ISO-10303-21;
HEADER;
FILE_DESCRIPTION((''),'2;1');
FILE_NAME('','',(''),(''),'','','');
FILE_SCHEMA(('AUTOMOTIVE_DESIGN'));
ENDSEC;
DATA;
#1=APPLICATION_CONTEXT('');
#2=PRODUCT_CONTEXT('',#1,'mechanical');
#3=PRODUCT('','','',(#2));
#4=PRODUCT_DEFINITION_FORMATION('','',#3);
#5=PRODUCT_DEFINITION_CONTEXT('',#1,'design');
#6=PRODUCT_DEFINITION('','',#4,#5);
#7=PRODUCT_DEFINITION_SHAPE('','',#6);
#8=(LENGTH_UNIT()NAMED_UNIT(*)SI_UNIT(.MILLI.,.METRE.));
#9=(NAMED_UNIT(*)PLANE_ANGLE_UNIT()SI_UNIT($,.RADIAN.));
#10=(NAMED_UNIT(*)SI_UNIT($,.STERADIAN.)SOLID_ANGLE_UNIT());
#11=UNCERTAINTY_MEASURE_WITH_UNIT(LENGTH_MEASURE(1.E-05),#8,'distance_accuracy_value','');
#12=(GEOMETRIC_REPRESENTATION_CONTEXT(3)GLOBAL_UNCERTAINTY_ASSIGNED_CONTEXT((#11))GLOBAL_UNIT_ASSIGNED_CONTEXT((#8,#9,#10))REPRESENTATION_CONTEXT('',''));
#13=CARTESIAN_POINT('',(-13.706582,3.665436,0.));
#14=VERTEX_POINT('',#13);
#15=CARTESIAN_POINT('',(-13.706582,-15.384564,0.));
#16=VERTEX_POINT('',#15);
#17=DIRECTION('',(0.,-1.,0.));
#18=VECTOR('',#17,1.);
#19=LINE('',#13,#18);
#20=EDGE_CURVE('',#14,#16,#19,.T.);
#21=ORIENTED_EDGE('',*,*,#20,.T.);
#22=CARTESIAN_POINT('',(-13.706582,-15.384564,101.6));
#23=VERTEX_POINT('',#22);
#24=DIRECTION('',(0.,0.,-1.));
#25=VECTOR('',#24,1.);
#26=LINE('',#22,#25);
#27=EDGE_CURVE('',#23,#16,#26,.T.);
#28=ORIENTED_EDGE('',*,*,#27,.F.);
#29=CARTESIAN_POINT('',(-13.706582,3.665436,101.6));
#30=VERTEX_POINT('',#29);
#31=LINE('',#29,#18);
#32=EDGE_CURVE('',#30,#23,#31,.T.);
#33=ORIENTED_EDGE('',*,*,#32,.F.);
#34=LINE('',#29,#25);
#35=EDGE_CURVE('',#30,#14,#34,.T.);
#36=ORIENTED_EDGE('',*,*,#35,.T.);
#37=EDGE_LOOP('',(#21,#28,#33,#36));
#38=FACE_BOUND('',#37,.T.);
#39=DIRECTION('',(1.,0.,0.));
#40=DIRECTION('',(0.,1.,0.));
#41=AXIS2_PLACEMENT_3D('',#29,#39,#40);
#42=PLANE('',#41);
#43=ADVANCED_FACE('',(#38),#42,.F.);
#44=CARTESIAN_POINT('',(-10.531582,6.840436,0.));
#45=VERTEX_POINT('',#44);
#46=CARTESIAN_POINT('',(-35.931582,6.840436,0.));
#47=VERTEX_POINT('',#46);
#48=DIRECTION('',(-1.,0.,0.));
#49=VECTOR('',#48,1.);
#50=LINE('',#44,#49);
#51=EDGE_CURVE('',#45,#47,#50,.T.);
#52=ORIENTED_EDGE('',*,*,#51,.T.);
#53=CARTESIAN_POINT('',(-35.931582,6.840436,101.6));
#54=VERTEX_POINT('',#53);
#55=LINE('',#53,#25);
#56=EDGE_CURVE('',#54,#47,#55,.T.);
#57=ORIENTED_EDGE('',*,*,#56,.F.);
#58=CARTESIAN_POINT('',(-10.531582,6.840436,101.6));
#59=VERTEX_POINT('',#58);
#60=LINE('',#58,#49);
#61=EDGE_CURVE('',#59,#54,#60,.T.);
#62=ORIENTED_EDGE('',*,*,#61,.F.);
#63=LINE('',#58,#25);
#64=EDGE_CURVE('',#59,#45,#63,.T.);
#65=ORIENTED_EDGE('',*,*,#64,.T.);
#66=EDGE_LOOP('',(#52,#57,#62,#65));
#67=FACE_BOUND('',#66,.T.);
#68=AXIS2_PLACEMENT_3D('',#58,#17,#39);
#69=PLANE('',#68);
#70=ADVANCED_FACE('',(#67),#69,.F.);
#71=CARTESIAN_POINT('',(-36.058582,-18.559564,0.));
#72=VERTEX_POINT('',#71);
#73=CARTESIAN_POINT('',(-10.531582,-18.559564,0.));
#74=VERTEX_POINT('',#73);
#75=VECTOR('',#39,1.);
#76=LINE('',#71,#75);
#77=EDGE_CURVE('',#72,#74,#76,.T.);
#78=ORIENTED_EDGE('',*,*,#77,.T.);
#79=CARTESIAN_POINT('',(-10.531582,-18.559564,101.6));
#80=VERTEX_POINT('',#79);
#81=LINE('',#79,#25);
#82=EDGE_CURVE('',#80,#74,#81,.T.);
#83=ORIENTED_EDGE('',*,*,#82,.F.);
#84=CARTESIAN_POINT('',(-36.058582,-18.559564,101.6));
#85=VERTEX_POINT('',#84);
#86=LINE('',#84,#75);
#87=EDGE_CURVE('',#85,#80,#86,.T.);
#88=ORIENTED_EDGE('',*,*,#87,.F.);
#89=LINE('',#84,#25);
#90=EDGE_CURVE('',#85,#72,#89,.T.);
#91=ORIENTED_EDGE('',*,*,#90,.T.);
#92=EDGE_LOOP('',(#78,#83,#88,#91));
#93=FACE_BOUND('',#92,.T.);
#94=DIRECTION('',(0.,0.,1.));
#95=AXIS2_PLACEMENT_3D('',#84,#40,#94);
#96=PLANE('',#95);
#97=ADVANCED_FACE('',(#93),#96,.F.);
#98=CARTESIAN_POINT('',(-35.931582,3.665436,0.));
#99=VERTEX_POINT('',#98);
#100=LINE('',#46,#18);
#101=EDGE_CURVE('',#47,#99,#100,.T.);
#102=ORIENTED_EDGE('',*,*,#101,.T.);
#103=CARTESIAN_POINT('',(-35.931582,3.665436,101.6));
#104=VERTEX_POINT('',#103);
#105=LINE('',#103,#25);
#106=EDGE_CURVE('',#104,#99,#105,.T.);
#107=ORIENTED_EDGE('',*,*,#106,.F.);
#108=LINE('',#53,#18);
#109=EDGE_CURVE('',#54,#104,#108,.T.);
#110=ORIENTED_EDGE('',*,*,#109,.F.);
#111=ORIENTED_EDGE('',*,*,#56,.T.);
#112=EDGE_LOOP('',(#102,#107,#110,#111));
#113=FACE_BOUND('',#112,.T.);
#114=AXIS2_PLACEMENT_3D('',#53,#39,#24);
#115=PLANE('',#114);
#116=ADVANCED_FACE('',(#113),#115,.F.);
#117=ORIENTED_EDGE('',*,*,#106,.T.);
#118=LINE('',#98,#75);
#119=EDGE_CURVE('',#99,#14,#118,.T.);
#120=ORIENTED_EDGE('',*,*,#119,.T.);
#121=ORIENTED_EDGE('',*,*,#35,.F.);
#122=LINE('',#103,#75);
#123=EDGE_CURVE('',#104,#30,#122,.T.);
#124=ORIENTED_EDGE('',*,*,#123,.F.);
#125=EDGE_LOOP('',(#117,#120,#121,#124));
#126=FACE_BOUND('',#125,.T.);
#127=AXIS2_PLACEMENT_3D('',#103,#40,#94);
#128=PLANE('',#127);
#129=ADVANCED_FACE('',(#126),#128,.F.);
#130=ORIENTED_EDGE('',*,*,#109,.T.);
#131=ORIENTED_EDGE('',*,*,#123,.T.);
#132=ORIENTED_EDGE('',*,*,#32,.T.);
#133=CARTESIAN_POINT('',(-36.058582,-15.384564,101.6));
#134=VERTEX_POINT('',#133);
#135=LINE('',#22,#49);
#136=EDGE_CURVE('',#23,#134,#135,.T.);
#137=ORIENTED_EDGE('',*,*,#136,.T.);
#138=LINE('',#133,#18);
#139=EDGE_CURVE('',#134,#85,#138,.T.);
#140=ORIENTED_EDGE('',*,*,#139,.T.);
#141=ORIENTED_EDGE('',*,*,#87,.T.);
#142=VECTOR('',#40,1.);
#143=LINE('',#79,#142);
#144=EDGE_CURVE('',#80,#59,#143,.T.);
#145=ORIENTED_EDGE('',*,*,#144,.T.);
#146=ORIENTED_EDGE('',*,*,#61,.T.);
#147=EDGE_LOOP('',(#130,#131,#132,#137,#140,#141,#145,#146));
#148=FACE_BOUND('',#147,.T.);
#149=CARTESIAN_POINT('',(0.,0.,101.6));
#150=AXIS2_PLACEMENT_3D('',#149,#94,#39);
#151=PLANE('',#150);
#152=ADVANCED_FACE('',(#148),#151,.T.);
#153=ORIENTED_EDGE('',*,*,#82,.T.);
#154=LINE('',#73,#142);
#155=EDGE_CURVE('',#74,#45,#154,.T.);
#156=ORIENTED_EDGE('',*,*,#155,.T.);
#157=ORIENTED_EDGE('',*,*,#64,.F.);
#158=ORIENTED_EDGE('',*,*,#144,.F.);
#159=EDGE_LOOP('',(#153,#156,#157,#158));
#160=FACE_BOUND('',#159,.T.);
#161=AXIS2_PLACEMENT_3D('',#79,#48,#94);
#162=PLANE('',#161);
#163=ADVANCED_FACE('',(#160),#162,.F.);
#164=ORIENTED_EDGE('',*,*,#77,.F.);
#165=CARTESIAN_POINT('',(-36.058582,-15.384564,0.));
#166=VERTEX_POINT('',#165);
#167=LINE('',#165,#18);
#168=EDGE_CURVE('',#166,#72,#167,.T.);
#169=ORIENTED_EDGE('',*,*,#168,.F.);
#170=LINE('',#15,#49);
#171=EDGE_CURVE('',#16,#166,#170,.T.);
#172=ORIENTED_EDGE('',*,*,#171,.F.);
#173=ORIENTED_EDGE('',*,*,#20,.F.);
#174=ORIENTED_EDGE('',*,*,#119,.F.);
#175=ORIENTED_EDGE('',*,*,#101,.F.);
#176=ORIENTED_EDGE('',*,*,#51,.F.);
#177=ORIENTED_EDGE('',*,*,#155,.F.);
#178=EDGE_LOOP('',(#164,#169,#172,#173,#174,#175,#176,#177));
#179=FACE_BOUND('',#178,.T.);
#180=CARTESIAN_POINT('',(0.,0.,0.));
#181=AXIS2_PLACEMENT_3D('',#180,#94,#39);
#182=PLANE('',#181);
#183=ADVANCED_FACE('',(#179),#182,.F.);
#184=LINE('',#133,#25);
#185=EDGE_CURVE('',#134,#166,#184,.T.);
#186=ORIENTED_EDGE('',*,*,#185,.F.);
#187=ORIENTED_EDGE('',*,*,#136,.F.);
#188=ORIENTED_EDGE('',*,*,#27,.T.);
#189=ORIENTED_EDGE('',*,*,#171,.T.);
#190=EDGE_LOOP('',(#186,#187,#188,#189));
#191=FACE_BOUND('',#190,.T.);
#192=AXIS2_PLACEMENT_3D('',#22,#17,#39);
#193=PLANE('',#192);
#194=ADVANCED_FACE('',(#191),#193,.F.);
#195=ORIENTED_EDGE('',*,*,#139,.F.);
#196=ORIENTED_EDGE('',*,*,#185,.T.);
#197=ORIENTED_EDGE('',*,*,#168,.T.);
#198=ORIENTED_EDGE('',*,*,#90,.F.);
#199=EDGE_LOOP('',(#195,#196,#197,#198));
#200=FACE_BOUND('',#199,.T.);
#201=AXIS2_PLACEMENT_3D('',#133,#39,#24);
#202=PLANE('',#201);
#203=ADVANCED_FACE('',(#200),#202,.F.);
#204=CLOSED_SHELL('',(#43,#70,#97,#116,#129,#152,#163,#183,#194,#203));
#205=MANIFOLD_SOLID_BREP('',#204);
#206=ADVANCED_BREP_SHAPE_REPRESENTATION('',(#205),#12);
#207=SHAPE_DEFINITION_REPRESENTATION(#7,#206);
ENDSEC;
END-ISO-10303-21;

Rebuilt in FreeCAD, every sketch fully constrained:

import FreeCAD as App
import Part
import Sketcher

V = App.Vector
Q = App.Units.Quantity


def add_polygon(sketch, points):
    """Adds a closed chain of lines whose ends are joined by coincident constraints."""
    first, n = sketch.GeometryCount, len(points)
    for a, b in zip(points, points[1:] + points[:1]):
        sketch.addGeometry(Part.LineSegment(App.Vector(*a, 0), App.Vector(*b, 0)), False)
    for i in range(n):
        sketch.addConstraint(Sketcher.Constraint("Coincident", first + i, 2, first + (i + 1) % n, 1))

doc = App.newDocument("Part")
body = doc.addObject("PartDesign::Body", "Body")

sketch1 = body.newObject("Sketcher::SketchObject", "Sketch")
sketch1.AttachmentSupport = (doc.getObject("XY_Plane"), [""])
sketch1.MapMode = "FlatFace"
add_polygon(sketch1, [(-35.931582, 6.840436), (-35.931582, 3.665436), (-13.706582, 3.665436), (-13.706582, -15.384564), (-36.058582, -15.384564), (-36.058582, -18.559564), (-10.531582, -18.559564), (-10.531582, 6.840436)])
sketch1.addConstraint(Sketcher.Constraint("Vertical", 0))
sketch1.addConstraint(Sketcher.Constraint("Horizontal", 1))
sketch1.addConstraint(Sketcher.Constraint("Vertical", 2))
sketch1.addConstraint(Sketcher.Constraint("Horizontal", 3))
sketch1.addConstraint(Sketcher.Constraint("Vertical", 4))
sketch1.addConstraint(Sketcher.Constraint("Horizontal", 5))
sketch1.addConstraint(Sketcher.Constraint("Vertical", 6))
sketch1.addConstraint(Sketcher.Constraint("Horizontal", 7))
sketch1.addConstraint(Sketcher.Constraint("Equal", 0, 4))
sketch1.addConstraint(Sketcher.Constraint("Equal", 7, 6))
sketch1.addConstraint(Sketcher.Constraint("DistanceX", 7, 2, 7, 1, Q("1 in")))
sketch1.addConstraint(Sketcher.Constraint("DistanceX", 3, 2, 3, 1, Q("0.88 in")))
sketch1.addConstraint(Sketcher.Constraint("DistanceY", 2, 2, 2, 1, Q("0.75 in")))
sketch1.addConstraint(Sketcher.Constraint("DistanceX", 1, 1, 1, 2, Q("0.875 in")))
sketch1.addConstraint(Sketcher.Constraint("DistanceX", 0, 2, -1, 1, Q("35.931582 mm")))
sketch1.addConstraint(Sketcher.Constraint("DistanceY", -1, 1, 0, 2, Q("3.665436 mm")))
pad1 = body.newObject("PartDesign::Pad", "Pad")
pad1.Profile = sketch1
pad1.Length = Q("4 in")

doc.recompute()
